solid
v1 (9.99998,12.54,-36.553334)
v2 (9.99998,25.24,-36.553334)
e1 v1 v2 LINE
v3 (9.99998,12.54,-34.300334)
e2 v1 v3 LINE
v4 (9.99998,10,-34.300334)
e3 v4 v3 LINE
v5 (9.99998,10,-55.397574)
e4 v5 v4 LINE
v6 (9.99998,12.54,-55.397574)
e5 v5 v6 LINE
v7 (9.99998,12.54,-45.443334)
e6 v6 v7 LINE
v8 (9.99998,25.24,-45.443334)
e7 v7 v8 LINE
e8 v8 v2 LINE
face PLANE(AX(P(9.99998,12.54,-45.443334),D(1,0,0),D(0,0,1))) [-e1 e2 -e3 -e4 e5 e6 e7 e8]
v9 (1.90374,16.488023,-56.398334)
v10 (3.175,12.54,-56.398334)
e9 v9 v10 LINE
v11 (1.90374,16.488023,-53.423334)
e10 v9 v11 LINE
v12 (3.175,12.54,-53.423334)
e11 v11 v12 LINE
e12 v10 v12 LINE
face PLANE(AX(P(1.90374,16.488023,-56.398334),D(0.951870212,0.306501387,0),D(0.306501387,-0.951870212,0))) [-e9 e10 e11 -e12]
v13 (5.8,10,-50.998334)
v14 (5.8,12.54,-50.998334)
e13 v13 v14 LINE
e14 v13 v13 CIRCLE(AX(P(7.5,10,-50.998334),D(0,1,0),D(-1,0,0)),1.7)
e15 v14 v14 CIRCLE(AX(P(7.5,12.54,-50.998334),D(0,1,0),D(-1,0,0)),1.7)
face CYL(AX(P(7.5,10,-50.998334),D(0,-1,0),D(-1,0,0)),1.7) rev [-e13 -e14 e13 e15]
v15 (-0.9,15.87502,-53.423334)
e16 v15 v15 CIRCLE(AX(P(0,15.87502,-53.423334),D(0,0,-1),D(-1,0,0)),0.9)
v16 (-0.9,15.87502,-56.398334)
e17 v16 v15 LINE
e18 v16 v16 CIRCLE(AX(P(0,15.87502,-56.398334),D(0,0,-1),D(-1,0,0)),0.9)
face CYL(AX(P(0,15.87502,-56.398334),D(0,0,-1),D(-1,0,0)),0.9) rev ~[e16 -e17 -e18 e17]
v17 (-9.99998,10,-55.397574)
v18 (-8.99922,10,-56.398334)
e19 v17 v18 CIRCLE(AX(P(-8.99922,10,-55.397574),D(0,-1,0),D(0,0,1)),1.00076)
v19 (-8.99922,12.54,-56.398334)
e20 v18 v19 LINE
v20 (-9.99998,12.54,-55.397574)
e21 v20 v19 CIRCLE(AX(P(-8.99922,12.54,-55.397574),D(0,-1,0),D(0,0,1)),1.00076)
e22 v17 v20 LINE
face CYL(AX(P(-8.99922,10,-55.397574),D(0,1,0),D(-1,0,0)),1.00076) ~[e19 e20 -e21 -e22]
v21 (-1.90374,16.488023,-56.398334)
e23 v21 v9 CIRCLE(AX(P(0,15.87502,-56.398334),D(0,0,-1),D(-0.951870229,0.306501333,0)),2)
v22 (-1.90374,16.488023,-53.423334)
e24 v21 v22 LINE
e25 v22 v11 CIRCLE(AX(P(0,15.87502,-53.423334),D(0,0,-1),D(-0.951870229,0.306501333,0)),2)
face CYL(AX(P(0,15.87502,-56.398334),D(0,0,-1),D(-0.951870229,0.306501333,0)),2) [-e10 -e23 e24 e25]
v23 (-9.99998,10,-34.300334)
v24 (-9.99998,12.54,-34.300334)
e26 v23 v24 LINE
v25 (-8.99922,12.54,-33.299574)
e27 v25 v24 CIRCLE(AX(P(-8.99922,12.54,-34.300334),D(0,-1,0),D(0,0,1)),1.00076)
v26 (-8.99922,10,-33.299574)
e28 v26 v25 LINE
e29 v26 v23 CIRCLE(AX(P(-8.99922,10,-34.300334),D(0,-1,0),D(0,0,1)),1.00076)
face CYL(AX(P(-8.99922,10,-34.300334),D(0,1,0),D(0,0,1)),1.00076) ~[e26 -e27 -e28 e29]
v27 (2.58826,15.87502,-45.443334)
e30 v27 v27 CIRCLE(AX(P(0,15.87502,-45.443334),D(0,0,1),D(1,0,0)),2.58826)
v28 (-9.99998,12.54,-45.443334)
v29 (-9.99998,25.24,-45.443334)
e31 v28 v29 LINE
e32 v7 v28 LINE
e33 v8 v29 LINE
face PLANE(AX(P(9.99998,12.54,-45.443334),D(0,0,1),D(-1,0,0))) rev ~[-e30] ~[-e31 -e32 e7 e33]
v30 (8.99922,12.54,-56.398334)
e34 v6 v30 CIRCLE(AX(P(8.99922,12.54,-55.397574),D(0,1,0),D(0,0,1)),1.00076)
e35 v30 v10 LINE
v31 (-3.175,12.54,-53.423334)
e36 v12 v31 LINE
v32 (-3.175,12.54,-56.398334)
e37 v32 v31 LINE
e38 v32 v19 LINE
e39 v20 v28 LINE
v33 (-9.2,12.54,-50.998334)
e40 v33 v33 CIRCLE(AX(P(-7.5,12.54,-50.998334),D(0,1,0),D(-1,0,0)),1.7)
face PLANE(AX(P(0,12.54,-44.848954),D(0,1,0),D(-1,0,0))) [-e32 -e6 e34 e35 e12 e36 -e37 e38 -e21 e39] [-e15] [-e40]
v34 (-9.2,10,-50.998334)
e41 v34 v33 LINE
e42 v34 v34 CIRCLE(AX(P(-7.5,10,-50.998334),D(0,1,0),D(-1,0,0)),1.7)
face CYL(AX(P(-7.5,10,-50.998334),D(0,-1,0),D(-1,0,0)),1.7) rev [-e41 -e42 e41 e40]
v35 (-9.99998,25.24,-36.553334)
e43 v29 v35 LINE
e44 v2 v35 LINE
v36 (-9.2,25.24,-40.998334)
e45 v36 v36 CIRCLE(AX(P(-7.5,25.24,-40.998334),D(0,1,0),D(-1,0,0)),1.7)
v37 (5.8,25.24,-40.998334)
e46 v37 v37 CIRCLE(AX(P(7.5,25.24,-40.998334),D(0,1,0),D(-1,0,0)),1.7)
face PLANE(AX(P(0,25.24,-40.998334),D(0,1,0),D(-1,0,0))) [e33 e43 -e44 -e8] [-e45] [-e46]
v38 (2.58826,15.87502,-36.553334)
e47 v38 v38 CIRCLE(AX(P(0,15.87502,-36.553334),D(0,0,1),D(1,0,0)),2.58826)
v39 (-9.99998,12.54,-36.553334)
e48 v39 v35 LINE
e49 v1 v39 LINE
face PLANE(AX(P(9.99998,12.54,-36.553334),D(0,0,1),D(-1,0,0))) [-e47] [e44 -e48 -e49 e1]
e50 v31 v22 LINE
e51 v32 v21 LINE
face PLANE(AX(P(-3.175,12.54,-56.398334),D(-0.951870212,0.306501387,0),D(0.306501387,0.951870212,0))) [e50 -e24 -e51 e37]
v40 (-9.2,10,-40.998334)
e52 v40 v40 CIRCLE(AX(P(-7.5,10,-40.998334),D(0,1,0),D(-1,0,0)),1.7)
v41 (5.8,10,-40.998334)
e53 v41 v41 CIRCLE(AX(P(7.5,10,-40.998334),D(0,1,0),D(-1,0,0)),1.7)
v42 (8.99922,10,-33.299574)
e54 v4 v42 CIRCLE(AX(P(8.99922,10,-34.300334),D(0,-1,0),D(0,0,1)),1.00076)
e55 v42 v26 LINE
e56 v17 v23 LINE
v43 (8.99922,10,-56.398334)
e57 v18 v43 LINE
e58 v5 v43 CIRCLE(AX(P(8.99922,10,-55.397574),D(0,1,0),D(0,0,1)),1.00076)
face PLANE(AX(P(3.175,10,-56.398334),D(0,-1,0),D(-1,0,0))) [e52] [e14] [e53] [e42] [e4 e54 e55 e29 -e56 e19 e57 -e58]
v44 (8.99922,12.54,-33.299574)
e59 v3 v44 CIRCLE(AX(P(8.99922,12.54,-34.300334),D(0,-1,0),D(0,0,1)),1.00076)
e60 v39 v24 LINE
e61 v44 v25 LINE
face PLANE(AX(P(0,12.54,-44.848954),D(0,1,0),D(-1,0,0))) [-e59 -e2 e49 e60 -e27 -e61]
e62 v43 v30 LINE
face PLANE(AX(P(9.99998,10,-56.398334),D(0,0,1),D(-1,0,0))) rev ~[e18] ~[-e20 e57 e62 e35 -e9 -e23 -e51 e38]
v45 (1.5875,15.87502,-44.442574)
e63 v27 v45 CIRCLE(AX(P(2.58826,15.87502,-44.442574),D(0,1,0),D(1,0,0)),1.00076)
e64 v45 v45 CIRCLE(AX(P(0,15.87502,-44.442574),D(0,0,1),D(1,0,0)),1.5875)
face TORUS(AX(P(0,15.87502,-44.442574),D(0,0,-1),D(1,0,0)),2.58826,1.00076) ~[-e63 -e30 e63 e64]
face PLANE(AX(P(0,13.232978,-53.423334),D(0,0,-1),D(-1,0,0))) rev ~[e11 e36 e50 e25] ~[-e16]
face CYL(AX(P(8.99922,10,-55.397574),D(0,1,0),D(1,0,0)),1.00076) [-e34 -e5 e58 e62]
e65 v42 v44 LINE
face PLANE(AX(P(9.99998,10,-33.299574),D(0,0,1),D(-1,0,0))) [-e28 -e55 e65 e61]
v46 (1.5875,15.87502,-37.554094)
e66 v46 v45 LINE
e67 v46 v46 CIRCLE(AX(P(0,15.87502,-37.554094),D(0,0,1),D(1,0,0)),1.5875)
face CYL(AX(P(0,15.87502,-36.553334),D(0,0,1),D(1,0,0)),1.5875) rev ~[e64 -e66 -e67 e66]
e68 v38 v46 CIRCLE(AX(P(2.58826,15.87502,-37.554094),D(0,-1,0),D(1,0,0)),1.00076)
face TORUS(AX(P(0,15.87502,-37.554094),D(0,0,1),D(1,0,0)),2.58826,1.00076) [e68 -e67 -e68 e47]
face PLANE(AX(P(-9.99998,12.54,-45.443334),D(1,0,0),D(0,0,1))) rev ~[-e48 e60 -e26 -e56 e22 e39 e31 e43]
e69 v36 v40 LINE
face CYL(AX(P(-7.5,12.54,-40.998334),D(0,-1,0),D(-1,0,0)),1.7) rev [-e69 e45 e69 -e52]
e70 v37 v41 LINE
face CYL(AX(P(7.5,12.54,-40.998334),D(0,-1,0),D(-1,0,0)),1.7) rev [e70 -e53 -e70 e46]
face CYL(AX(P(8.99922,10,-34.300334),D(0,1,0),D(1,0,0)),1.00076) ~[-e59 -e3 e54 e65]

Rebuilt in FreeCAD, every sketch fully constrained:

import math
import FreeCAD as App
import Part
import Sketcher
from FreeCAD import Vector
Q = App.Units.Quantity


def edges_at(feature, points):
    """Names of the edges that pass closest to the given points."""
    edges = feature.Shape.Edges
    near = lambda p: min(range(len(edges)), key=lambda i: edges[i].distToShape(Part.Vertex(*p))[0])
    return sorted({f"Edge{near(p) + 1}" for p in points})

doc = App.newDocument("Part")
params = doc.addObject("Spreadsheet::Sheet", "Params")
for row, (alias, value) in enumerate([
    ("pad1_length", "0.1 in"),
    ("sketch2_height", "0.35 in"),
    ("pad2_length", "0.5 in"),
    ("sketch3_height", "0.1 in"),
    ("sketch3_width", "0.25 in"),
    ("pad3_length", "2.975 mm"),
    ("sketch4_diameter", "0.125 in"),
    ("pocket1_length", "0.35 in"),
    ("fillet_radius", "0.0394 in"),
], start=1):
    params.set(f"A{row}", alias)
    params.set(f"B{row}", "=" + value)
    params.setAlias(f"B{row}", alias)

body = doc.addObject("PartDesign::Body", "Body")

sketch1 = doc.addObject("Sketcher::SketchObject", "Sketch")
body.addObject(sketch1)
sketch1.AttachmentSupport = (doc.XZ_Plane, [""])
sketch1.MapMode = "FlatFace"
sketch1.AttachmentOffset = App.Placement(Vector(0, 0, -10), App.Rotation())
sketch1.addGeometry([
    Part.LineSegment(Vector(9.99998, -33.299574, 0), Vector(9.99998, -56.398334, 0)),
    Part.LineSegment(Vector(9.99998, -56.398334, 0), Vector(-9.99998, -56.398334, 0)),
    Part.LineSegment(Vector(-9.99998, -56.398334, 0), Vector(-9.99998, -33.299574, 0)),
    Part.LineSegment(Vector(-9.99998, -33.299574, 0), Vector(9.99998, -33.299574, 0)),
    Part.Circle(Vector(7.5, -50.998334, 0), Vector(0, 0, 1), 1.7),
    Part.Circle(Vector(-7.5, -50.998334, 0), Vector(0, 0, 1), 1.7),
    Part.Circle(Vector(7.5, -40.998334, 0), Vector(0, 0, 1), 1.7),
    Part.Circle(Vector(-7.5, -40.998334, 0), Vector(0, 0, 1), 1.7),
], False)
sketch1.addConstraint([
    Sketcher.Constraint("Coincident", 0, 2, 1, 1),
    Sketcher.Constraint("Coincident", 1, 2, 2, 1),
    Sketcher.Constraint("Coincident", 2, 2, 3, 1),
    Sketcher.Constraint("Coincident", 3, 2, 0, 1),
    Sketcher.Constraint("Vertical", 0),
    Sketcher.Constraint("Horizontal", 1),
    Sketcher.Constraint("Vertical", 2),
    Sketcher.Constraint("Horizontal", 3),
    Sketcher.Constraint("Equal", 4, 5),
    Sketcher.Constraint("Equal", 5, 6),
    Sketcher.Constraint("Equal", 6, 7),
    Sketcher.Constraint("Symmetric", 4, 3, 5, 3, -2),
    Sketcher.Constraint("Symmetric", 6, 3, 7, 3, -2),
    Sketcher.Constraint("Vertical", 4, 3, 6, 3),
    Sketcher.Constraint("Diameter", 4, 3.4),
    Sketcher.Constraint("DistanceX", 1, 2, 1, 1, Q("0.7874 in")),
    Sketcher.Constraint("DistanceY", 0, 2, 0, 1, Q("0.9094 in")),
    Sketcher.Constraint("DistanceX", -1, 1, 0, 2, Q("0.3937 in")),
    Sketcher.Constraint("DistanceX", -1, 1, 4, 3, 7.5),
    Sketcher.Constraint("DistanceY", 4, 3, 6, 3, 10.0),
    Sketcher.Constraint("DistanceY", 0, 2, 4, 3, 5.4),
    Sketcher.Constraint("DistanceY", 4, 3, -1, 1, 50.998334),
])
pad1 = doc.addObject("PartDesign::Pad", "Pad")
body.addObject(pad1)
pad1.Profile = sketch1
pad1.setExpression("Length", "Params.pad1_length")
pad1.Reversed = True

sketch2 = doc.addObject("Sketcher::SketchObject", "Sketch001")
body.addObject(sketch2)
sketch2.AttachmentSupport = (doc.XZ_Plane, [""])
sketch2.MapMode = "FlatFace"
sketch2.AttachmentOffset = App.Placement(Vector(0, 0, -12.54), App.Rotation())
sketch2.addGeometry([
    Part.LineSegment(Vector(9.99998, -36.553334, 0), Vector(9.99998, -45.443334, 0)),
    Part.LineSegment(Vector(9.99998, -45.443334, 0), Vector(-9.99998, -45.443334, 0)),
    Part.LineSegment(Vector(-9.99998, -45.443334, 0), Vector(-9.99998, -36.553334, 0)),
    Part.LineSegment(Vector(-9.99998, -36.553334, 0), Vector(9.99998, -36.553334, 0)),
    Part.Circle(Vector(7.5, -40.998334, 0), Vector(0, 0, 1), 1.7),
    Part.Circle(Vector(-7.5, -40.998334, 0), Vector(0, 0, 1), 1.7),
], False)
sketch2.addConstraint([
    Sketcher.Constraint("Coincident", 0, 2, 1, 1),
    Sketcher.Constraint("Coincident", 1, 2, 2, 1),
    Sketcher.Constraint("Coincident", 2, 2, 3, 1),
    Sketcher.Constraint("Coincident", 3, 2, 0, 1),
    Sketcher.Constraint("Vertical", 0),
    Sketcher.Constraint("Horizontal", 1),
    Sketcher.Constraint("Vertical", 2),
    Sketcher.Constraint("Horizontal", 3),
    Sketcher.Constraint("Equal", 4, 5),
    Sketcher.Constraint("Symmetric", 4, 3, 5, 3, -2),
    Sketcher.Constraint("DistanceY", 0, 2, 0, 1, Q("0.35 in")),
    Sketcher.Constraint("Diameter", 4, 3.4),
    Sketcher.Constraint("DistanceX", 1, 2, 1, 1, Q("0.7874 in")),
    Sketcher.Constraint("DistanceY", 0, 2, 4, 3, Q("0.175 in")),
    Sketcher.Constraint("DistanceX", -1, 1, 0, 2, Q("0.3937 in")),
    Sketcher.Constraint("DistanceX", -1, 1, 4, 3, 7.5),
    Sketcher.Constraint("DistanceY", 4, 3, -1, 1, 40.998334),
])
sketch2.setExpression("Constraints[10]", "Params.sketch2_height")
pad2 = doc.addObject("PartDesign::Pad", "Pad001")
body.addObject(pad2)
pad2.Profile = sketch2
pad2.setExpression("Length", "Params.pad2_length")
pad2.Reversed = True

sketch3 = doc.addObject("Sketcher::SketchObject", "Sketch002")
body.addObject(sketch3)
sketch3.AttachmentSupport = (doc.XY_Plane, [""])
sketch3.MapMode = "FlatFace"
sketch3.AttachmentOffset = App.Placement(Vector(0, 0, -56.398334), App.Rotation())
sketch3.addGeometry([
    Part.LineSegment(Vector(3.175, 12.54, 0), Vector(3.175, 10, 0)),
    Part.LineSegment(Vector(3.175, 10, 0), Vector(-3.175, 10, 0)),
    Part.LineSegment(Vector(-3.175, 10, 0), Vector(-3.175, 12.54, 0)),
    Part.LineSegment(Vector(-3.175, 12.54, 0), Vector(-1.90374, 16.488023, 0)),
    Part.ArcOfCircle(Part.Circle(Vector(0, 15.87502, 0), Vector(0, 0, 1), 2), math.radians(17.848511), math.radians(162.151489)),
    Part.LineSegment(Vector(1.90374, 16.488023, 0), Vector(3.175, 12.54, 0)),
    Part.Circle(Vector(0, 15.87502, 0), Vector(0, 0, 1), 0.9),
], False)
sketch3.addConstraint([
    Sketcher.Constraint("Coincident", 0, 2, 1, 1),
    Sketcher.Constraint("Coincident", 1, 2, 2, 1),
    Sketcher.Constraint("Coincident", 2, 2, 3, 1),
    Sketcher.Constraint("Tangent", 3, 2, 4, 2),
    Sketcher.Constraint("Tangent", 4, 1, 5, 1),
    Sketcher.Constraint("Coincident", 5, 2, 0, 1),
    Sketcher.Constraint("Vertical", 0),
    Sketcher.Constraint("Horizontal", 1),
    Sketcher.Constraint("Vertical", 2),
    Sketcher.Constraint("Coincident", 6, 3, 4, 3),
    Sketcher.Constraint("Symmetric", 3, 2, 4, 1, -2),
    Sketcher.Constraint("Horizontal", 2, 2, 5, 2),
    Sketcher.Constraint("DistanceY", 0, 2, 0, 1, Q("0.1 in")),
    Sketcher.Constraint("DistanceX", 1, 2, 1, 1, Q("0.25 in")),
    Sketcher.Constraint("Diameter", 6, 1.8),
    Sketcher.Constraint("Radius", 4, 2.0),
    Sketcher.Constraint("DistanceY", 0, 2, 6, 3, Q("0.2313 in")),
    Sketcher.Constraint("DistanceY", -1, 1, 0, 2, 10.0),
])
sketch3.setExpression("Constraints[12]", "Params.sketch3_height")
sketch3.setExpression("Constraints[13]", "Params.sketch3_width")
pad3 = doc.addObject("PartDesign::Pad", "Pad002")
body.addObject(pad3)
pad3.Profile = sketch3
pad3.setExpression("Length", "Params.pad3_length")

sketch4 = doc.addObject("Sketcher::SketchObject", "Sketch003")
body.addObject(sketch4)
sketch4.AttachmentSupport = (doc.XY_Plane, [""])
sketch4.MapMode = "FlatFace"
sketch4.AttachmentOffset = App.Placement(Vector(0, 0, -36.553334), App.Rotation())
sketch4.addGeometry(Part.Circle(Vector(0, 15.87502, 0), Vector(0, 0, 1), 1.5875), False)
sketch4.addConstraint([
    Sketcher.Constraint("PointOnObject", 0, 3, -2),
    Sketcher.Constraint("Diameter", 0, Q("0.125 in")),
    Sketcher.Constraint("DistanceY", -1, 1, 0, 3, 15.87502),
])
sketch4.setExpression("Constraints[1]", "Params.sketch4_diameter")
pocket1 = doc.addObject("PartDesign::Pocket", "Pocket")
body.addObject(pocket1)
pocket1.Profile = sketch4
pocket1.setExpression("Length", "Params.pocket1_length")
doc.recompute()

fillet = doc.addObject("PartDesign::Fillet", "Fillet")
body.addObject(fillet)
fillet.Base = (pocket1, edges_at(pocket1, [
    (-1.587, 15.875, -36.553),
    (-1.587, 15.875, -45.443),
    (10, 11.27, -33.3),
    (-10, 11.27, -33.3),
    (10, 11.27, -56.398),
    (-10, 11.27, -56.398),
]))
fillet.setExpression("Radius", "Params.fillet_radius")

doc.recompute()
